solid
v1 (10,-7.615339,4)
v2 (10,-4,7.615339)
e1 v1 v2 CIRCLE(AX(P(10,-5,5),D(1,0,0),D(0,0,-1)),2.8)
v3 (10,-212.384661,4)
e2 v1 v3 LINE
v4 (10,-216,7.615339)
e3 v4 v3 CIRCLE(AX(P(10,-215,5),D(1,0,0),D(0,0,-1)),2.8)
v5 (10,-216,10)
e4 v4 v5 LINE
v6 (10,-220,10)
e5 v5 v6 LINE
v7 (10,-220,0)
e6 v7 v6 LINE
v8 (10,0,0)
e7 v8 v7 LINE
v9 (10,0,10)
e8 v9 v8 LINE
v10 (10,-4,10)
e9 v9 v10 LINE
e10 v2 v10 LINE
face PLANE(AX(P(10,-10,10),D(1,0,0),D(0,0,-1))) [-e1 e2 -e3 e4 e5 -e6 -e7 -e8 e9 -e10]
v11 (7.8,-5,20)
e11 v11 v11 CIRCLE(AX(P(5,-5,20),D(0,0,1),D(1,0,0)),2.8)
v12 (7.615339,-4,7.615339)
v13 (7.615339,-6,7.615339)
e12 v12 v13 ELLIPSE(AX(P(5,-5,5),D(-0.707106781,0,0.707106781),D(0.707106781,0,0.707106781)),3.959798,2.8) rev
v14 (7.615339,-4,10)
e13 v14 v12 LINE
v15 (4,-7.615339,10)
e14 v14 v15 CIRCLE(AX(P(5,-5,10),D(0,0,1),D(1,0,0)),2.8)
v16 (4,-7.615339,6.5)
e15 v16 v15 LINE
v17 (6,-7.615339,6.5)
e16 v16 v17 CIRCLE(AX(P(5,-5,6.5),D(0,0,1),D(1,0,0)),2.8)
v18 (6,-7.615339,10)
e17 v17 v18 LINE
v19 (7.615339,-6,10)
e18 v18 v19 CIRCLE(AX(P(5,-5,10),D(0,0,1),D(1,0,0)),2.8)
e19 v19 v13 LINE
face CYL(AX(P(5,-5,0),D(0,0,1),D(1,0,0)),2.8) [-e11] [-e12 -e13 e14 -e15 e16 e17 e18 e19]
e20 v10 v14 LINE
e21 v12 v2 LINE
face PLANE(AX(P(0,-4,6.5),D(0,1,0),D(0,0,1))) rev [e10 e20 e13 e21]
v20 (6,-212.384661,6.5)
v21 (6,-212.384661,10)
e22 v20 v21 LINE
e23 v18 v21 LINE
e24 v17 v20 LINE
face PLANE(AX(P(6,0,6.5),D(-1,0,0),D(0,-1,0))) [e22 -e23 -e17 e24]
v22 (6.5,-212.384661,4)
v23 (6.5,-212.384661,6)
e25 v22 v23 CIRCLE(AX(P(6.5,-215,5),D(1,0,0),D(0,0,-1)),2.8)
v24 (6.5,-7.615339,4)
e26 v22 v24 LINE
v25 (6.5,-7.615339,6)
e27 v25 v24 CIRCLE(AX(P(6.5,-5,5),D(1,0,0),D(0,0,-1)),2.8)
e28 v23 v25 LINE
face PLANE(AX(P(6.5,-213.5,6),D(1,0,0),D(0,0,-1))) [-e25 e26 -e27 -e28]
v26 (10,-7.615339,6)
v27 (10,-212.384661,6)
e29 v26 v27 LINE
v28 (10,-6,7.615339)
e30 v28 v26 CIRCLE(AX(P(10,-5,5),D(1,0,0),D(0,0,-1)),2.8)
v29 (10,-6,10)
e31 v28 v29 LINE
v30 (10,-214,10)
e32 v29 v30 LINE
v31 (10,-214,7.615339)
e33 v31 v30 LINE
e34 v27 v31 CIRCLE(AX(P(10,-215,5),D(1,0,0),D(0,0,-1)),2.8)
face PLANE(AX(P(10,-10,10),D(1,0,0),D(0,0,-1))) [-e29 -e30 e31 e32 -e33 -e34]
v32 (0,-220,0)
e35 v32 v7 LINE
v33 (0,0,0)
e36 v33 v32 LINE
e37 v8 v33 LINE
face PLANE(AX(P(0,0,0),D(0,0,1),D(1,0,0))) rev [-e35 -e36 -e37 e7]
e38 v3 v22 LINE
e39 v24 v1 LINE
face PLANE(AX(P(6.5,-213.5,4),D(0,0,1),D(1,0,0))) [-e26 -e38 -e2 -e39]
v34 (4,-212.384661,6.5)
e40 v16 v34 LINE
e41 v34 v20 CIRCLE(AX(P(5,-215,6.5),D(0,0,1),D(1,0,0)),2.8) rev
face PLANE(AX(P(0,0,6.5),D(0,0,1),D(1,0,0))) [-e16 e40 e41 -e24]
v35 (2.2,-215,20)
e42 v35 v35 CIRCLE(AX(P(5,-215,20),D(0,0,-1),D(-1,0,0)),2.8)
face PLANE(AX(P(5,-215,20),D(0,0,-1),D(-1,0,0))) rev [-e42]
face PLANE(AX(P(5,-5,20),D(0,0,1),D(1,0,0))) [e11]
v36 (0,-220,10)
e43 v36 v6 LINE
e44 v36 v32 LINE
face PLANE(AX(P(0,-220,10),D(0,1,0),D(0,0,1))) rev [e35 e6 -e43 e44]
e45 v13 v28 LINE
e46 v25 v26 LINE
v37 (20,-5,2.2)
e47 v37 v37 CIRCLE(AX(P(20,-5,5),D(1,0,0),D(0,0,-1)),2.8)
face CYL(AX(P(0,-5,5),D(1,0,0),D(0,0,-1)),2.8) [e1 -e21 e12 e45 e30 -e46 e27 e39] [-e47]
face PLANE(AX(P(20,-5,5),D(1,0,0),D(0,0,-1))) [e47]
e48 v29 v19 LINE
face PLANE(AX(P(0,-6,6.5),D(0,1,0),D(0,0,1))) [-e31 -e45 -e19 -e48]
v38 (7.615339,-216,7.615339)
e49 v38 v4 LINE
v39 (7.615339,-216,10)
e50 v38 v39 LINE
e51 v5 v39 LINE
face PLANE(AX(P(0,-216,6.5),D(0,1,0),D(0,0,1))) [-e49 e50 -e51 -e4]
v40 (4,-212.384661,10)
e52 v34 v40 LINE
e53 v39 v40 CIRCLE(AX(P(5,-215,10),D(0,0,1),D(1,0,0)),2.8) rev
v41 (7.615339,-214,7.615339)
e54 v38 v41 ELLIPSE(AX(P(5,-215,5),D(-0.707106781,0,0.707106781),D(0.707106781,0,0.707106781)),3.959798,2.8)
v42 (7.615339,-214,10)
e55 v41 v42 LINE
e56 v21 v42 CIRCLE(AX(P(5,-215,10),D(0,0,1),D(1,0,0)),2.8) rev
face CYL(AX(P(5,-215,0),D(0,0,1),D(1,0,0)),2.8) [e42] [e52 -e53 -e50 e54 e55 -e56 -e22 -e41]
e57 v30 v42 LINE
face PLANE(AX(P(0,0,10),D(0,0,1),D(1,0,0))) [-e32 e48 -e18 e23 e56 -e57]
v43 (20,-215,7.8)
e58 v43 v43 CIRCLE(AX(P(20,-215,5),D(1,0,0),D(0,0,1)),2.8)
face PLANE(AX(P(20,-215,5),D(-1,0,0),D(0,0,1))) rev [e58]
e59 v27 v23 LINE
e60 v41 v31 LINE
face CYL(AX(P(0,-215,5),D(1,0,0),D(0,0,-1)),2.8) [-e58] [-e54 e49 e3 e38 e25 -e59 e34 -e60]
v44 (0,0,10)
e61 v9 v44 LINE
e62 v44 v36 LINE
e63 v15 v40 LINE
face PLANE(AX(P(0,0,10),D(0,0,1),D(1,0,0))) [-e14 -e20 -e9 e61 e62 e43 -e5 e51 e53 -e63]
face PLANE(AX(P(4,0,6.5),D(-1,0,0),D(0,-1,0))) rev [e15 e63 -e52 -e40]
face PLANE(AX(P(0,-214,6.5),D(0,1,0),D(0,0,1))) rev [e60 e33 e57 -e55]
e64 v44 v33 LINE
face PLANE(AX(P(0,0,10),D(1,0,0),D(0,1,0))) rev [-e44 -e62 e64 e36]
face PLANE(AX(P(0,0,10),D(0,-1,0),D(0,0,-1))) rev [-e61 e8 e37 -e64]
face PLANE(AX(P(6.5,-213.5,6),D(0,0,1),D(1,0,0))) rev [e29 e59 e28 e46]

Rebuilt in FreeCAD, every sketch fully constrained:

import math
import FreeCAD as App
import Part
import Sketcher

V = App.Vector


def add_polygon(sketch, points):
    """Adds a closed chain of lines whose ends are joined by coincident constraints."""
    first, n = sketch.GeometryCount, len(points)
    for a, b in zip(points, points[1:] + points[:1]):
        sketch.addGeometry(Part.LineSegment(App.Vector(*a, 0), App.Vector(*b, 0)), False)
    for i in range(n):
        sketch.addConstraint(Sketcher.Constraint("Coincident", first + i, 2, first + (i + 1) % n, 1))

doc = App.newDocument("Part")
body = doc.addObject("PartDesign::Body", "Body")

# Sketch on XY plane
sketch1 = body.newObject("Sketcher::SketchObject", "Sketch")
sketch1.AttachmentSupport = (doc.getObject("XY_Plane"), [""])
sketch1.MapMode = "FlatFace"
add_polygon(sketch1, [(0, 0), (0, -220), (220, -220), (220, 0)])  # lines 0-3
add_polygon(sketch1, [(210, -210), (10, -210), (10, -10), (210, -10)])  # lines 4-7
sketch1.addConstraint([
    Sketcher.Constraint("Vertical", 0),
    Sketcher.Constraint("Horizontal", 1),
    Sketcher.Constraint("Vertical", 2),
    Sketcher.Constraint("Horizontal", 3),
    Sketcher.Constraint("Horizontal", 4),
    Sketcher.Constraint("Vertical", 5),
    Sketcher.Constraint("Horizontal", 6),
    Sketcher.Constraint("Vertical", 7),
    Sketcher.Constraint("Coincident", 3, 2, -1, 1),
    Sketcher.Constraint("Equal", 3, 0),
    Sketcher.Constraint("Equal", 6, 5),
    Sketcher.Constraint("DistanceX", 1, 1, 1, 2, 220.0),
    Sketcher.Constraint("DistanceX", 4, 2, 4, 1, 200.0),
    Sketcher.Constraint("DistanceX", -1, 1, 4, 2, 10.0),
    Sketcher.Constraint("DistanceY", 4, 2, -1, 1, 210.0),
])
pad1 = body.newObject("PartDesign::Pad", "Pad")
pad1.Profile = sketch1
pad1.Length = 10

# Sketch on XY plane
sketch2 = body.newObject("Sketcher::SketchObject", "Sketch001")
sketch2.AttachmentSupport = (doc.getObject("XY_Plane"), [""])
sketch2.MapMode = "FlatFace"
sketch2.AttachmentOffset = App.Placement(V(0, 0, 10), App.Rotation())
add_polygon(sketch2, [(4, -4), (4, -216), (216, -216), (216, -4)])  # lines 0-3
add_polygon(sketch2, [(214, -214), (6, -214), (6, -6), (214, -6)])  # lines 4-7
sketch2.addConstraint([
    Sketcher.Constraint("Vertical", 0),
    Sketcher.Constraint("Horizontal", 1),
    Sketcher.Constraint("Vertical", 2),
    Sketcher.Constraint("Horizontal", 3),
    Sketcher.Constraint("Horizontal", 4),
    Sketcher.Constraint("Vertical", 5),
    Sketcher.Constraint("Horizontal", 6),
    Sketcher.Constraint("Vertical", 7),
    Sketcher.Constraint("Equal", 3, 0),
    Sketcher.Constraint("Equal", 6, 5),
    Sketcher.Constraint("DistanceX", 1, 1, 1, 2, 212.0),
    Sketcher.Constraint("DistanceX", 4, 2, 4, 1, 208.0),
    Sketcher.Constraint("DistanceX", -1, 1, 0, 2, 4.0),
    Sketcher.Constraint("DistanceY", 0, 2, -1, 1, 216.0),
    Sketcher.Constraint("DistanceX", -1, 1, 4, 2, 6.0),
    Sketcher.Constraint("DistanceY", 4, 2, -1, 1, 214.0),
])
pocket1 = body.newObject("PartDesign::Pocket", "Pocket")
pocket1.Profile = sketch2
pocket1.Length = 3.5

# Sketch on XY plane
sketch3 = body.newObject("Sketcher::SketchObject", "Sketch002")
sketch3.AttachmentSupport = (doc.getObject("XY_Plane"), [""])
sketch3.MapMode = "FlatFace"
sketch3.AttachmentOffset = App.Placement(V(0, 0, 10), App.Rotation())
add_polygon(sketch3, [(0, 0), (0, -10), (10, -10), (10, 0)])  # lines 0-3
add_polygon(sketch3, [(210, 0), (210, -10), (220, -10), (220, 0)])  # lines 4-7
add_polygon(sketch3, [(210, -210), (210, -220), (220, -220), (220, -210)])  # lines 8-11
add_polygon(sketch3, [(0, -210), (0, -220), (10, -220), (10, -210)])  # lines 12-15
sketch3.addConstraint([
    Sketcher.Constraint("Vertical", 0),
    Sketcher.Constraint("Horizontal", 1),
    Sketcher.Constraint("Vertical", 2),
    Sketcher.Constraint("Horizontal", 3),
    Sketcher.Constraint("Vertical", 4),
    Sketcher.Constraint("Horizontal", 5),
    Sketcher.Constraint("Vertical", 6),
    Sketcher.Constraint("Horizontal", 7),
    Sketcher.Constraint("Vertical", 8),
    Sketcher.Constraint("Horizontal", 9),
    Sketcher.Constraint("Vertical", 10),
    Sketcher.Constraint("Horizontal", 11),
    Sketcher.Constraint("Vertical", 12),
    Sketcher.Constraint("Horizontal", 13),
    Sketcher.Constraint("Vertical", 14),
    Sketcher.Constraint("Horizontal", 15),
    Sketcher.Constraint("Coincident", 3, 2, -1, 1),
    Sketcher.Constraint("PointOnObject", 6, 2, -1),
    Sketcher.Constraint("PointOnObject", 12, 2, -2),
    Sketcher.Constraint("Horizontal", 1, 2, 4, 2),
    Sketcher.Constraint("Horizontal", 9, 2, 12, 2),
    Sketcher.Constraint("Horizontal", 11, 2, 14, 2),
    Sketcher.Constraint("Vertical", 7, 2, 8, 2),
    Sketcher.Constraint("Vertical", 6, 2, 9, 2),
    Sketcher.Constraint("Vertical", 2, 2, 13, 2),
    Sketcher.Constraint("Equal", 3, 5),
    Sketcher.Constraint("Equal", 15, 0),
    Sketcher.Constraint("Equal", 6, 8),
    Sketcher.Constraint("DistanceX", 1, 1, 1, 2, 10.0),
    Sketcher.Constraint("DistanceX", -1, 1, 4, 2, 210.0),
    Sketcher.Constraint("DistanceY", 8, 2, -1, 1, 220.0),
])
pad2 = body.newObject("PartDesign::Pad", "Pad001")
pad2.Profile = sketch3
pad2.Type = "TwoLengths"
pad2.Length = 200
pad2.Length2 = 10

# Sketch on XY plane
sketch4 = body.newObject("Sketcher::SketchObject", "Sketch003")
sketch4.AttachmentSupport = (doc.getObject("XY_Plane"), [""])
sketch4.MapMode = "FlatFace"
sketch4.AttachmentOffset = App.Placement(V(0, 0, 210), App.Rotation())
add_polygon(sketch4, [(6.5, -4), (6.5, -6), (10, -6), (10, -4)])  # lines 0-3
add_polygon(sketch4, [(4, -6.5), (4, -10), (6, -10), (6, -6.5)])  # lines 4-7
add_polygon(sketch4, [(210, -4), (210, -6), (213.5, -6), (213.5, -4)])  # lines 8-11
add_polygon(sketch4, [(214, -6.5), (214, -10), (216, -10), (216, -6.5)])  # lines 12-15
add_polygon(sketch4, [(210, -214), (210, -216), (213.5, -216), (213.5, -214)])  # lines 16-19
add_polygon(sketch4, [(214, -210), (214, -213.5), (216, -213.5), (216, -210)])  # lines 20-23
add_polygon(sketch4, [(4, -210), (4, -213.5), (6, -213.5), (6, -210)])  # lines 24-27
add_polygon(sketch4, [(6.5, -214), (6.5, -216), (10, -216), (10, -214)])  # lines 28-31
sketch4.addConstraint([
    Sketcher.Constraint("Vertical", 0),
    Sketcher.Constraint("Horizontal", 1),
    Sketcher.Constraint("Vertical", 2),
    Sketcher.Constraint("Horizontal", 3),
    Sketcher.Constraint("Vertical", 4),
    Sketcher.Constraint("Horizontal", 5),
    Sketcher.Constraint("Vertical", 6),
    Sketcher.Constraint("Horizontal", 7),
    Sketcher.Constraint("Vertical", 8),
    Sketcher.Constraint("Horizontal", 9),
    Sketcher.Constraint("Vertical", 10),
    Sketcher.Constraint("Horizontal", 11),
    Sketcher.Constraint("Vertical", 12),
    Sketcher.Constraint("Horizontal", 13),
    Sketcher.Constraint("Vertical", 14),
    Sketcher.Constraint("Horizontal", 15),
    Sketcher.Constraint("Vertical", 16),
    Sketcher.Constraint("Horizontal", 17),
    Sketcher.Constraint("Vertical", 18),
    Sketcher.Constraint("Horizontal", 19),
    Sketcher.Constraint("Vertical", 20),
    Sketcher.Constraint("Horizontal", 21),
    Sketcher.Constraint("Vertical", 22),
    Sketcher.Constraint("Horizontal", 23),
    Sketcher.Constraint("Vertical", 24),
    Sketcher.Constraint("Horizontal", 25),
    Sketcher.Constraint("Vertical", 26),
    Sketcher.Constraint("Horizontal", 27),
    Sketcher.Constraint("Vertical", 28),
    Sketcher.Constraint("Horizontal", 29),
    Sketcher.Constraint("Vertical", 30),
    Sketcher.Constraint("Horizontal", 31),
    Sketcher.Constraint("Horizontal", 1, 2, 8, 2),
    Sketcher.Constraint("Horizontal", 3, 2, 10, 2),
    Sketcher.Constraint("Horizontal", 5, 2, 12, 2),
    Sketcher.Constraint("Horizontal", 7, 2, 14, 2),
    Sketcher.Constraint("Horizontal", 21, 2, 24, 2),
    Sketcher.Constraint("Horizontal", 23, 2, 26, 2),
    Sketcher.Constraint("Horizontal", 17, 2, 28, 2),
    Sketcher.Constraint("Horizontal", 19, 2, 30, 2),
    Sketcher.Constraint("Vertical", 11, 2, 16, 2),
    Sketcher.Constraint("Vertical", 10, 2, 17, 2),
    Sketcher.Constraint("Vertical", 14, 2, 21, 2),
    Sketcher.Constraint("Vertical", 7, 2, 24, 2),
    Sketcher.Constraint("Vertical", 6, 2, 25, 2),
    Sketcher.Constraint("Vertical", 3, 2, 28, 2),
    Sketcher.Constraint("Vertical", 2, 2, 29, 2),
    Sketcher.Constraint("Equal", 3, 9),
    Sketcher.Constraint("Equal", 7, 13),
    Sketcher.Constraint("Equal", 27, 0),
    Sketcher.Constraint("Equal", 31, 4),
    Sketcher.Constraint("Equal", 10, 16),
    Sketcher.Constraint("Equal", 14, 20),
    Sketcher.Constraint("DistanceX", 5, 1, 5, 2, 2.0),
    Sketcher.Constraint("DistanceX", 1, 1, 1, 2, 3.5),
    Sketcher.Constraint("DistanceY", 0, 2, -1, 1, 6.0),
    Sketcher.Constraint("DistanceX", -1, 1, 1, 2, 10.0),
    Sketcher.Constraint("DistanceX", -1, 1, 4, 2, 4.0),
    Sketcher.Constraint("DistanceY", 4, 2, -1, 1, 10.0),
    Sketcher.Constraint("DistanceX", -1, 1, 8, 2, 210.0),
    Sketcher.Constraint("DistanceX", -1, 1, 12, 2, 214.0),
    Sketcher.Constraint("DistanceY", 16, 2, -1, 1, 216.0),
    Sketcher.Constraint("DistanceY", 22, 2, -1, 1, 210.0),
    Sketcher.Constraint("DistanceX", 21, 1, 21, 2, 1.998055),
])
pocket2 = body.newObject("PartDesign::Pocket", "Pocket001")
pocket2.Profile = sketch4
pocket2.Length = 203.5

# Sketch on XY plane
sketch5 = body.newObject("Sketcher::SketchObject", "Sketch004")
sketch5.AttachmentSupport = (doc.getObject("XY_Plane"), [""])
sketch5.MapMode = "FlatFace"
sketch5.AttachmentOffset = App.Placement(V(0, 0, 210), App.Rotation())
add_polygon(sketch5, [(0, 0), (0, -220), (220, -220), (220, 0)])  # lines 0-3
add_polygon(sketch5, [(210, -210), (10, -210), (10, -10), (210, -10)])  # lines 4-7
sketch5.addConstraint([
    Sketcher.Constraint("Vertical", 0),
    Sketcher.Constraint("Horizontal", 1),
    Sketcher.Constraint("Vertical", 2),
    Sketcher.Constraint("Horizontal", 3),
    Sketcher.Constraint("Horizontal", 4),
    Sketcher.Constraint("Vertical", 5),
    Sketcher.Constraint("Horizontal", 6),
    Sketcher.Constraint("Vertical", 7),
    Sketcher.Constraint("Coincident", 3, 2, -1, 1),
    Sketcher.Constraint("Equal", 3, 0),
    Sketcher.Constraint("Equal", 6, 5),
    Sketcher.Constraint("DistanceX", 1, 1, 1, 2, 220.0),
    Sketcher.Constraint("DistanceX", 4, 2, 4, 1, 200.0),
    Sketcher.Constraint("DistanceX", -1, 1, 4, 2, 10.0),
    Sketcher.Constraint("DistanceY", 4, 2, -1, 1, 210.0),
])
pad3 = body.newObject("PartDesign::Pad", "Pad002")
pad3.Profile = sketch5
pad3.Length = 10

# Sketch on XZ plane
sketch6 = body.newObject("Sketcher::SketchObject", "Sketch005")
sketch6.AttachmentSupport = (doc.getObject("XZ_Plane"), [""])
sketch6.MapMode = "FlatFace"
sketch6.AttachmentOffset = App.Placement(V(0, 0, 213.5), App.Rotation())
add_polygon(sketch6, [(6.5, 214), (6.5, 216), (213.5, 216), (213.5, 214)])  # lines 0-3
sketch6.addConstraint([
    Sketcher.Constraint("Vertical", 0),
    Sketcher.Constraint("Horizontal", 1),
    Sketcher.Constraint("Vertical", 2),
    Sketcher.Constraint("Horizontal", 3),
    Sketcher.Constraint("DistanceX", 1, 1, 1, 2, 207.0),
    Sketcher.Constraint("DistanceY", 0, 1, 0, 2, 2.0),
    Sketcher.Constraint("DistanceY", -1, 1, 0, 2, 216.0),
    Sketcher.Constraint("DistanceX", -1, 1, 0, 2, 6.5),
])
pocket3 = body.newObject("PartDesign::Pocket", "Pocket002")
pocket3.Profile = sketch6
pocket3.Length = 207
doc.recompute()

datumline = body.newObject("PartDesign::Line", "DatumLine")
datumline.Placement = App.Placement(V(0, -110, 110), App.Rotation(V(0, 0, 1), V(1, 0, 0)))
polarpattern = body.newObject("PartDesign::PolarPattern", "PolarPattern")
polarpattern.Originals = [pocket3]
polarpattern.Axis = (datumline, [""])
polarpattern.Angle = 360
polarpattern.Occurrences = 4
body.Tip = polarpattern

# Sketch on XY plane
sketch7 = body.newObject("Sketcher::SketchObject", "Sketch006")
sketch7.AttachmentSupport = (doc.getObject("XY_Plane"), [""])
sketch7.MapMode = "FlatFace"
sketch7.AttachmentOffset = App.Placement(V(0, 0, 220), App.Rotation())
add_polygon(sketch7, [(0, -102), (0, -118), (86, -118), (86, -102)])  # lines 0-3
sketch7.addGeometry(Part.LineSegment(V(75, -112.2, 0), V(71.8, -112.2, 0)), False)  # 4
sketch7.addGeometry(Part.ArcOfCircle(Part.Circle(V(71.8, -110, 0), V(0, 0, 1), 2.2), math.radians(90), math.radians(270)), False)  # 5
sketch7.addGeometry(Part.LineSegment(V(71.8, -107.8, 0), V(75, -107.8, 0)), False)  # 6
sketch7.addGeometry(Part.ArcOfCircle(Part.Circle(V(75, -110, 0), V(0, 0, 1), 2.2), math.radians(-90), math.radians(90)), False)  # 7
add_polygon(sketch7, [(134, -102), (134, -118), (220, -118), (220, -102)])  # lines 8-11
sketch7.addGeometry(Part.ArcOfCircle(Part.Circle(V(145, -110, 0), V(0, 0, 1), 2.2), math.radians(90), math.radians(270)), False)  # 12
sketch7.addGeometry(Part.LineSegment(V(145, -107.8, 0), V(148.2, -107.8, 0)), False)  # 13
sketch7.addGeometry(Part.ArcOfCircle(Part.Circle(V(148.2, -110, 0), V(0, 0, 1), 2.2), math.radians(-90), math.radians(90)), False)  # 14
sketch7.addGeometry(Part.LineSegment(V(148.2, -112.2, 0), V(145, -112.2, 0)), False)  # 15
sketch7.addConstraint([
    Sketcher.Constraint("Tangent", 4, 2, 5, 2),
    Sketcher.Constraint("Tangent", 5, 1, 6, 1),
    Sketcher.Constraint("Tangent", 6, 2, 7, 2),
    Sketcher.Constraint("Tangent", 7, 1, 4, 1),
    Sketcher.Constraint("Tangent", 12, 1, 13, 1),
    Sketcher.Constraint("Tangent", 13, 2, 14, 2),
    Sketcher.Constraint("Tangent", 14, 1, 15, 1),
    Sketcher.Constraint("Tangent", 15, 2, 12, 2),
    Sketcher.Constraint("Vertical", 0),
    Sketcher.Constraint("Horizontal", 1),
    Sketcher.Constraint("Vertical", 2),
    Sketcher.Constraint("Horizontal", 3),
    Sketcher.Constraint("Horizontal", 4),
    Sketcher.Constraint("Horizontal", 6),
    Sketcher.Constraint("Vertical", 8),
    Sketcher.Constraint("Horizontal", 9),
    Sketcher.Constraint("Vertical", 10),
    Sketcher.Constraint("Horizontal", 11),
    Sketcher.Constraint("Horizontal", 13),
    Sketcher.Constraint("Horizontal", 15),
    Sketcher.Constraint("Equal", 7, 12),
    Sketcher.Constraint("PointOnObject", 0, 2, -2),
    Sketcher.Constraint("Horizontal", 7, 3, 12, 3),
    Sketcher.Constraint("Horizontal", 1, 2, 8, 2),
    Sketcher.Constraint("Horizontal", 3, 2, 10, 2),
    Sketcher.Constraint("Equal", 3, 9),
    Sketcher.Constraint("Equal", 6, 13),
    Sketcher.Constraint("DistanceX", 1, 1, 1, 2, 86.0),
    Sketcher.Constraint("DistanceY", 0, 2, 0, 1, 16.0),
    Sketcher.Constraint("Radius", 5, 2.25),
    Sketcher.Constraint("DistanceY", 5, 3, -1, 1, 110.0),
    Sketcher.Constraint("DistanceX", -1, 1, 7, 3, 75.0),
    Sketcher.Constraint("DistanceX", -1, 1, 12, 3, 145.0),
    Sketcher.Constraint("DistanceY", 0, 2, -1, 1, 118.0),
    Sketcher.Constraint("DistanceX", -1, 1, 8, 2, 134.0),
    Sketcher.Constraint("DistanceX", 4, 2, 4, 1, 3.198474),
])
pad4 = body.newObject("PartDesign::Pad", "Pad003")
pad4.Profile = sketch7
pad4.Length = 10
pad4.Reversed = True
doc.recompute()

datumline2 = body.newObject("PartDesign::Line", "DatumLine001")
datumline2.Placement = App.Placement(V(110, 0, 110), App.Rotation(V(0, 0, 1), V(0, 1, 0)))
polarpattern2 = body.newObject("PartDesign::PolarPattern", "PolarPattern001")
polarpattern2.Originals = [pocket3]
polarpattern2.Axis = (datumline2, [""])
polarpattern2.Angle = 360
polarpattern2.Occurrences = 4
body.Tip = polarpattern2

# Sketch on YZ plane
sketch8 = body.newObject("Sketcher::SketchObject", "Sketch007")
sketch8.AttachmentSupport = (doc.getObject("YZ_Plane"), [""])
sketch8.MapMode = "FlatFace"
add_polygon(sketch8, [(12, 10), (-235, 10), (-235, 248), (12, 248)])  # lines 0-3
sketch8.addConstraint([
    Sketcher.Constraint("Horizontal", 0),
    Sketcher.Constraint("Vertical", 1),
    Sketcher.Constraint("Horizontal", 2),
    Sketcher.Constraint("Vertical", 3),
    Sketcher.Constraint("DistanceY", -1, 1, 0, 2, 10.0),
    Sketcher.Constraint("DistanceX", 0, 2, 0, 1, 247.36255),
    Sketcher.Constraint("DistanceY", 1, 1, 1, 2, 237.555255),
    Sketcher.Constraint("DistanceX", 0, 2, -1, 1, 235.153671),
])
pocket4 = body.newObject("PartDesign::Pocket", "Pocket003")
pocket4.Profile = sketch8
pocket4.Type = "ThroughAll"
pocket4.Reversed = True

# Sketch on XY plane
sketch9 = body.newObject("Sketcher::SketchObject", "Sketch008")
sketch9.AttachmentSupport = (doc.getObject("XY_Plane"), [""])
sketch9.MapMode = "FlatFace"
sketch9.AttachmentOffset = App.Placement(V(0, 0, 10), App.Rotation())
add_polygon(sketch9, [(10, 22), (10, -236), (263, -236), (263, 22)])  # lines 0-3
sketch9.addConstraint([
    Sketcher.Constraint("Vertical", 0),
    Sketcher.Constraint("Horizontal", 1),
    Sketcher.Constraint("Vertical", 2),
    Sketcher.Constraint("Horizontal", 3),
    Sketcher.Constraint("DistanceX", -1, 1, 0, 2, 10.0),
    Sketcher.Constraint("DistanceX", 1, 1, 1, 2, 253.494571),
    Sketcher.Constraint("DistanceY", 0, 2, 0, 1, 258.277977),
    Sketcher.Constraint("DistanceY", 0, 2, -1, 1, 235.854629),
])
pocket5 = body.newObject("PartDesign::Pocket", "Pocket004")
pocket5.Profile = sketch9
pocket5.Type = "ThroughAll"

# Sketch on XY plane
sketch10 = body.newObject("Sketcher::SketchObject", "Sketch009")
sketch10.AttachmentSupport = (doc.getObject("XY_Plane"), [""])
sketch10.MapMode = "FlatFace"
sketch10.AttachmentOffset = App.Placement(V(0, 0, 4), App.Rotation())
sketch10.addGeometry([
    Part.Circle(V(5, -5, 0), V(0, 0, 1), 2.8),
    Part.Circle(V(5, -215, 0), V(0, 0, 1), 2.8),
], False)
sketch10.addConstraint([
    Sketcher.Constraint("Equal", 0, 1),
    Sketcher.Constraint("Vertical", 0, 3, 1, 3),
    Sketcher.Constraint("Diameter", 0, 5.6),
    Sketcher.Constraint("DistanceX", -1, 1, 0, 3, 5.0),
    Sketcher.Constraint("DistanceY", 0, 3, -1, 1, 5.0),
    Sketcher.Constraint("DistanceY", 1, 3, -1, 1, 215.0),
])
pad5 = body.newObject("PartDesign::Pad", "Pad004")
pad5.Profile = sketch10
pad5.Length = 16

# Sketch on YZ plane
sketch11 = body.newObject("Sketcher::SketchObject", "Sketch010")
sketch11.AttachmentSupport = (doc.getObject("YZ_Plane"), [""])
sketch11.MapMode = "FlatFace"
sketch11.AttachmentOffset = App.Placement(V(0, 0, 10), App.Rotation())
sketch11.addGeometry([
    Part.Circle(V(-5, 5, 0), V(0, 0, 1), 2.8),
    Part.Circle(V(-215, 5, 0), V(0, 0, 1), 2.8),
], False)
sketch11.addConstraint([
    Sketcher.Constraint("Equal", 0, 1),
    Sketcher.Constraint("Horizontal", 0, 3, 1, 3),
    Sketcher.Constraint("Diameter", 0, 5.6),
    Sketcher.Constraint("DistanceX", 0, 3, -1, 1, 5.0),
    Sketcher.Constraint("DistanceY", -1, 1, 0, 3, 5.0),
    Sketcher.Constraint("DistanceX", 1, 3, -1, 1, 215.0),
])
pad6 = body.newObject("PartDesign::Pad", "Pad005")
pad6.Profile = sketch11
pad6.Type = "TwoLengths"
pad6.Length = 10
pad6.Length2 = 10

doc.recompute()
